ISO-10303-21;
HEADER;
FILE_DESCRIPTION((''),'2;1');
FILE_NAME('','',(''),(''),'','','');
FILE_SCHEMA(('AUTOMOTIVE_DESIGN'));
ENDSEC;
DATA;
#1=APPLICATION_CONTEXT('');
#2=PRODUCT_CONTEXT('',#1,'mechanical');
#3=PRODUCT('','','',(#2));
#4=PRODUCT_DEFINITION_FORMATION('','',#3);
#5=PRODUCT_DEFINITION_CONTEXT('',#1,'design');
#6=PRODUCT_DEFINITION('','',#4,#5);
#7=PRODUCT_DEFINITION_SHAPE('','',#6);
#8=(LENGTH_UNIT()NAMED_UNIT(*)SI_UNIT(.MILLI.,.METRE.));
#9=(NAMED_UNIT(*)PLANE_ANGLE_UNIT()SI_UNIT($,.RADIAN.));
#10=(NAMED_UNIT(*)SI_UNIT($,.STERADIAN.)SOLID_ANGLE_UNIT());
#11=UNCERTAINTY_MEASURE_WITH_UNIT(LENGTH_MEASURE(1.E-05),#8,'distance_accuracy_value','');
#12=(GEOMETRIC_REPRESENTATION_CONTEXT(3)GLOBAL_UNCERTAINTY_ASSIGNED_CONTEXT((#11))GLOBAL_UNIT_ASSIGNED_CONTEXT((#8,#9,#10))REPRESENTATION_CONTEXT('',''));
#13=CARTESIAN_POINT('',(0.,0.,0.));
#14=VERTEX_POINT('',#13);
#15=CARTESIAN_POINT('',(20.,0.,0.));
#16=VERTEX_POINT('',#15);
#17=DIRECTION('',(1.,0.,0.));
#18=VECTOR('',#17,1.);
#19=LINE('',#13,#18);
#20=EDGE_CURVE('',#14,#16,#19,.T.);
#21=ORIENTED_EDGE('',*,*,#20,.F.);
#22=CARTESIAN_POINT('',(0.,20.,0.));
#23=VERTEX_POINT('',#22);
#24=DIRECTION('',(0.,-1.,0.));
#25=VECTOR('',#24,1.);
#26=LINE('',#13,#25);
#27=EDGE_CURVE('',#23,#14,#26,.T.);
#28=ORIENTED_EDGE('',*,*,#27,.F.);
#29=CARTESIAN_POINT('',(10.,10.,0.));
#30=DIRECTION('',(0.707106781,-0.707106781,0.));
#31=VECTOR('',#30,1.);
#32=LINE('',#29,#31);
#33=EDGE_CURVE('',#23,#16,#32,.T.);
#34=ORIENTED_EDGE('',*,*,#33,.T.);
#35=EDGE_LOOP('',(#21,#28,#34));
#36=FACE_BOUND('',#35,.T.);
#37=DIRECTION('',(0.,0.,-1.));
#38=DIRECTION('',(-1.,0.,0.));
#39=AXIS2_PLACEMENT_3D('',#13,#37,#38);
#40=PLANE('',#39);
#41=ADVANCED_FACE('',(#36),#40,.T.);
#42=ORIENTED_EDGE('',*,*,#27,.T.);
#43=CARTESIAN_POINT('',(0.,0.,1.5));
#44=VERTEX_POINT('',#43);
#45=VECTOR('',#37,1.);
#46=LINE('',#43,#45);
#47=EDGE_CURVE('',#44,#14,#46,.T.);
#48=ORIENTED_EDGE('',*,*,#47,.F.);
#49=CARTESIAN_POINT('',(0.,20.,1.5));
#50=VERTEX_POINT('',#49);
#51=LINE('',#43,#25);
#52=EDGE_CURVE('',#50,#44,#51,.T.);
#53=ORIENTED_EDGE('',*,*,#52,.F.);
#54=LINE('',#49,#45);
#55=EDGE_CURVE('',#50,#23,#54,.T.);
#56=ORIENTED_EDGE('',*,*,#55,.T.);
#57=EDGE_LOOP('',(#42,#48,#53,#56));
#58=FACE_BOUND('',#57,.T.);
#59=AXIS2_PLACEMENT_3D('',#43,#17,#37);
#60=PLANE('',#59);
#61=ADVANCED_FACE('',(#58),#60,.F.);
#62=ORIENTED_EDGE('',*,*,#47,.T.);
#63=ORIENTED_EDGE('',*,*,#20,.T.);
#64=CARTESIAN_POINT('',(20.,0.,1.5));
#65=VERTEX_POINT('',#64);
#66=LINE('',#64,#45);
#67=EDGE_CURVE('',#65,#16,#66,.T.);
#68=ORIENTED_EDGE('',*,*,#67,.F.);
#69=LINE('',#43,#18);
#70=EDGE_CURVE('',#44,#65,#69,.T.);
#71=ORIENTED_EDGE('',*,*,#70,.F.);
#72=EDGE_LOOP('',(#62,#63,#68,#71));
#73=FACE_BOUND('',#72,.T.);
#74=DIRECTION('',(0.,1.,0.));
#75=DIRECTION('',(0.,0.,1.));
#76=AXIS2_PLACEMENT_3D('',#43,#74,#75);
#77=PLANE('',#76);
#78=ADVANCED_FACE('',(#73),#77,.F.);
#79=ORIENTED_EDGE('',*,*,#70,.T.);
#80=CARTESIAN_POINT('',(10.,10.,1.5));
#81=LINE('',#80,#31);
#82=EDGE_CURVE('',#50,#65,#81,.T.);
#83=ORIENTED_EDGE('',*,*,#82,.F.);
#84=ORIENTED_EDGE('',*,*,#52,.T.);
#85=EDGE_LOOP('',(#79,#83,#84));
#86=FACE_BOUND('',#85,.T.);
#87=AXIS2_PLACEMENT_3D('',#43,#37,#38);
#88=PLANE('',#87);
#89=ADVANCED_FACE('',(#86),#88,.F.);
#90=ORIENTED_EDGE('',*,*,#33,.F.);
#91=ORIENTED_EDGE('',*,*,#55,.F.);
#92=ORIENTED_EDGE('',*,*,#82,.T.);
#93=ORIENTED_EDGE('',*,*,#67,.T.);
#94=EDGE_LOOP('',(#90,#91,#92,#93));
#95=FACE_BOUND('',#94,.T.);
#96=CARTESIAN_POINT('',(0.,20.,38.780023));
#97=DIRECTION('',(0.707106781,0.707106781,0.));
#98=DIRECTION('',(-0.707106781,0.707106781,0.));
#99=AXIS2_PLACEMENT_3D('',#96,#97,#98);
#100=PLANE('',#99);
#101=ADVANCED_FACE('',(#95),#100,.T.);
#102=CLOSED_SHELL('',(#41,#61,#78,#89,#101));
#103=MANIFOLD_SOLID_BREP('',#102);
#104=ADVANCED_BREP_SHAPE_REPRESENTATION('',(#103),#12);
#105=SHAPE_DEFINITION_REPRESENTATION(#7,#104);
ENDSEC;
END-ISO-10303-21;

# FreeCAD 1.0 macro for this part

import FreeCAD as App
import Part
import Sketcher

V = App.Vector
Q = App.Units.Quantity

doc = App.newDocument("Part")
body = doc.addObject("PartDesign::Body", "Body")

sketch1 = body.newObject("Sketcher::SketchObject", "Sketch")
sketch1.AttachmentSupport = (doc.getObject("XY_Plane"), [""])
sketch1.MapMode = "FlatFace"
sketch1.addGeometry(Part.LineSegment(V(0, 20, 0), V(0, 0, 0)), False)
sketch1.addGeometry(Part.LineSegment(V(0, 0, 0), V(20, 0, 0)), False)
sketch1.addGeometry(Part.LineSegment(V(20, 0, 0), V(20, 20, 0)), False)
sketch1.addGeometry(Part.LineSegment(V(20, 20, 0), V(0, 20, 0)), False)
sketch1.addConstraint(Sketcher.Constraint("Coincident", 0, 2, 1, 1))
sketch1.addConstraint(Sketcher.Constraint("Coincident", 1, 2, 2, 1))
sketch1.addConstraint(Sketcher.Constraint("Coincident", 2, 2, 3, 1))
sketch1.addConstraint(Sketcher.Constraint("Coincident", 3, 2, 0, 1))
sketch1.addConstraint(Sketcher.Constraint("Vertical", 0))
sketch1.addConstraint(Sketcher.Constraint("Horizontal", 1))
sketch1.addConstraint(Sketcher.Constraint("Vertical", 2))
sketch1.addConstraint(Sketcher.Constraint("Horizontal", 3))
sketch1.addConstraint(Sketcher.Constraint("Coincident", 0, 2, -1, 1))
sketch1.addConstraint(Sketcher.Constraint("Equal", 3, 0))
sketch1.addConstraint(Sketcher.Constraint("DistanceX", 1, 1, 1, 2, Q("20 mm")))
pad1 = body.newObject("PartDesign::Pad", "Pad")
pad1.Profile = sketch1
pad1.Length = 1.5

sketch2 = body.newObject("Sketcher::SketchObject", "Sketch001")
sketch2.AttachmentSupport = (doc.getObject("XY_Plane"), [""])
sketch2.MapMode = "FlatFace"
sketch2.AttachmentOffset = App.Placement(V(0, 0, 1.5), App.Rotation())
sketch2.addGeometry(Part.LineSegment(V(-47, 67, 0), V(67, -47, 0)), False)
sketch2.addGeometry(Part.LineSegment(V(67, -47, 0), V(161, 47, 0)), False)
sketch2.addGeometry(Part.LineSegment(V(161, 47, 0), V(47, 161, 0)), False)
sketch2.addGeometry(Part.LineSegment(V(47, 161, 0), V(-47, 67, 0)), False)
sketch2.addConstraint(Sketcher.Constraint("Coincident", 0, 2, 1, 1))
sketch2.addConstraint(Sketcher.Constraint("Coincident", 1, 2, 2, 1))
sketch2.addConstraint(Sketcher.Constraint("Coincident", 2, 2, 3, 1))
sketch2.addConstraint(Sketcher.Constraint("Coincident", 3, 2, 0, 1))
sketch2.addConstraint(Sketcher.Constraint("Perpendicular", 0, 1))
sketch2.addConstraint(Sketcher.Constraint("Perpendicular", 1, 2))
sketch2.addConstraint(Sketcher.Constraint("Perpendicular", 2, 3))
sketch2.addConstraint(Sketcher.Constraint("Angle", 0, Q("-45 deg")))
sketch2.addConstraint(Sketcher.Constraint("DistanceX", 2, 2, 0, 2, Q("20 mm")))
sketch2.addConstraint(Sketcher.Constraint("DistanceY", 0, 2, 2, 2, Q("208.284271 mm")))
sketch2.addConstraint(Sketcher.Constraint("DistanceX", -1, 1, 0, 2, Q("67.071068 mm")))
sketch2.addConstraint(Sketcher.Constraint("DistanceY", 0, 2, -1, 1, Q("47.071068 mm")))
pocket1 = body.newObject("PartDesign::Pocket", "Pocket")
pocket1.Profile = sketch2
pocket1.Type = "ThroughAll"
pocket1.Midplane = True

doc.recompute()
